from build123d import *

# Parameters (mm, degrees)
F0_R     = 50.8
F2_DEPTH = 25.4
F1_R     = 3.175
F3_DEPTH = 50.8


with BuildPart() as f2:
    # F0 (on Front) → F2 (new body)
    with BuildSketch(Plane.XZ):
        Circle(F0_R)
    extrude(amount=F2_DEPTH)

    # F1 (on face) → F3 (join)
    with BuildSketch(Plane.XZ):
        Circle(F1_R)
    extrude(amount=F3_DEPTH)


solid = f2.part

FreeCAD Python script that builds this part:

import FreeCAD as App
import Part
import Sketcher
from FreeCAD import Vector
Q = App.Units.Quantity

doc = App.newDocument("Part")
body = doc.addObject("PartDesign::Body", "Body")

sketch1 = doc.addObject("Sketcher::SketchObject", "Sketch")
body.addObject(sketch1)
sketch1.AttachmentSupport = (doc.XZ_Plane, [""])
sketch1.MapMode = "FlatFace"
sketch1.addGeometry(Part.Circle(Vector(0, 0, 0), Vector(0, 0, 1), 50.8), False)
sketch1.addConstraint([
    Sketcher.Constraint("Coincident", 0, 3, -1, 1),
    Sketcher.Constraint("Diameter", 0, Q("4 in")),
])
pad1 = doc.addObject("PartDesign::Pad", "Pad")
body.addObject(pad1)
pad1.Profile = sketch1
pad1.Length = Q("1 in")

sketch2 = doc.addObject("Sketcher::SketchObject", "Sketch001")
body.addObject(sketch2)
sketch2.AttachmentSupport = (doc.XZ_Plane, [""])
sketch2.MapMode = "FlatFace"
sketch2.addGeometry(Part.Circle(Vector(0, 0, 0), Vector(0, 0, 1), 3.175), False)
sketch2.addConstraint([
    Sketcher.Constraint("Coincident", 0, 3, -1, 1),
    Sketcher.Constraint("Diameter", 0, Q("0.25 in")),
])
pad2 = doc.addObject("PartDesign::Pad", "Pad001")
body.addObject(pad2)
pad2.Profile = sketch2
pad2.Length = Q("2 in")

doc.recompute()
